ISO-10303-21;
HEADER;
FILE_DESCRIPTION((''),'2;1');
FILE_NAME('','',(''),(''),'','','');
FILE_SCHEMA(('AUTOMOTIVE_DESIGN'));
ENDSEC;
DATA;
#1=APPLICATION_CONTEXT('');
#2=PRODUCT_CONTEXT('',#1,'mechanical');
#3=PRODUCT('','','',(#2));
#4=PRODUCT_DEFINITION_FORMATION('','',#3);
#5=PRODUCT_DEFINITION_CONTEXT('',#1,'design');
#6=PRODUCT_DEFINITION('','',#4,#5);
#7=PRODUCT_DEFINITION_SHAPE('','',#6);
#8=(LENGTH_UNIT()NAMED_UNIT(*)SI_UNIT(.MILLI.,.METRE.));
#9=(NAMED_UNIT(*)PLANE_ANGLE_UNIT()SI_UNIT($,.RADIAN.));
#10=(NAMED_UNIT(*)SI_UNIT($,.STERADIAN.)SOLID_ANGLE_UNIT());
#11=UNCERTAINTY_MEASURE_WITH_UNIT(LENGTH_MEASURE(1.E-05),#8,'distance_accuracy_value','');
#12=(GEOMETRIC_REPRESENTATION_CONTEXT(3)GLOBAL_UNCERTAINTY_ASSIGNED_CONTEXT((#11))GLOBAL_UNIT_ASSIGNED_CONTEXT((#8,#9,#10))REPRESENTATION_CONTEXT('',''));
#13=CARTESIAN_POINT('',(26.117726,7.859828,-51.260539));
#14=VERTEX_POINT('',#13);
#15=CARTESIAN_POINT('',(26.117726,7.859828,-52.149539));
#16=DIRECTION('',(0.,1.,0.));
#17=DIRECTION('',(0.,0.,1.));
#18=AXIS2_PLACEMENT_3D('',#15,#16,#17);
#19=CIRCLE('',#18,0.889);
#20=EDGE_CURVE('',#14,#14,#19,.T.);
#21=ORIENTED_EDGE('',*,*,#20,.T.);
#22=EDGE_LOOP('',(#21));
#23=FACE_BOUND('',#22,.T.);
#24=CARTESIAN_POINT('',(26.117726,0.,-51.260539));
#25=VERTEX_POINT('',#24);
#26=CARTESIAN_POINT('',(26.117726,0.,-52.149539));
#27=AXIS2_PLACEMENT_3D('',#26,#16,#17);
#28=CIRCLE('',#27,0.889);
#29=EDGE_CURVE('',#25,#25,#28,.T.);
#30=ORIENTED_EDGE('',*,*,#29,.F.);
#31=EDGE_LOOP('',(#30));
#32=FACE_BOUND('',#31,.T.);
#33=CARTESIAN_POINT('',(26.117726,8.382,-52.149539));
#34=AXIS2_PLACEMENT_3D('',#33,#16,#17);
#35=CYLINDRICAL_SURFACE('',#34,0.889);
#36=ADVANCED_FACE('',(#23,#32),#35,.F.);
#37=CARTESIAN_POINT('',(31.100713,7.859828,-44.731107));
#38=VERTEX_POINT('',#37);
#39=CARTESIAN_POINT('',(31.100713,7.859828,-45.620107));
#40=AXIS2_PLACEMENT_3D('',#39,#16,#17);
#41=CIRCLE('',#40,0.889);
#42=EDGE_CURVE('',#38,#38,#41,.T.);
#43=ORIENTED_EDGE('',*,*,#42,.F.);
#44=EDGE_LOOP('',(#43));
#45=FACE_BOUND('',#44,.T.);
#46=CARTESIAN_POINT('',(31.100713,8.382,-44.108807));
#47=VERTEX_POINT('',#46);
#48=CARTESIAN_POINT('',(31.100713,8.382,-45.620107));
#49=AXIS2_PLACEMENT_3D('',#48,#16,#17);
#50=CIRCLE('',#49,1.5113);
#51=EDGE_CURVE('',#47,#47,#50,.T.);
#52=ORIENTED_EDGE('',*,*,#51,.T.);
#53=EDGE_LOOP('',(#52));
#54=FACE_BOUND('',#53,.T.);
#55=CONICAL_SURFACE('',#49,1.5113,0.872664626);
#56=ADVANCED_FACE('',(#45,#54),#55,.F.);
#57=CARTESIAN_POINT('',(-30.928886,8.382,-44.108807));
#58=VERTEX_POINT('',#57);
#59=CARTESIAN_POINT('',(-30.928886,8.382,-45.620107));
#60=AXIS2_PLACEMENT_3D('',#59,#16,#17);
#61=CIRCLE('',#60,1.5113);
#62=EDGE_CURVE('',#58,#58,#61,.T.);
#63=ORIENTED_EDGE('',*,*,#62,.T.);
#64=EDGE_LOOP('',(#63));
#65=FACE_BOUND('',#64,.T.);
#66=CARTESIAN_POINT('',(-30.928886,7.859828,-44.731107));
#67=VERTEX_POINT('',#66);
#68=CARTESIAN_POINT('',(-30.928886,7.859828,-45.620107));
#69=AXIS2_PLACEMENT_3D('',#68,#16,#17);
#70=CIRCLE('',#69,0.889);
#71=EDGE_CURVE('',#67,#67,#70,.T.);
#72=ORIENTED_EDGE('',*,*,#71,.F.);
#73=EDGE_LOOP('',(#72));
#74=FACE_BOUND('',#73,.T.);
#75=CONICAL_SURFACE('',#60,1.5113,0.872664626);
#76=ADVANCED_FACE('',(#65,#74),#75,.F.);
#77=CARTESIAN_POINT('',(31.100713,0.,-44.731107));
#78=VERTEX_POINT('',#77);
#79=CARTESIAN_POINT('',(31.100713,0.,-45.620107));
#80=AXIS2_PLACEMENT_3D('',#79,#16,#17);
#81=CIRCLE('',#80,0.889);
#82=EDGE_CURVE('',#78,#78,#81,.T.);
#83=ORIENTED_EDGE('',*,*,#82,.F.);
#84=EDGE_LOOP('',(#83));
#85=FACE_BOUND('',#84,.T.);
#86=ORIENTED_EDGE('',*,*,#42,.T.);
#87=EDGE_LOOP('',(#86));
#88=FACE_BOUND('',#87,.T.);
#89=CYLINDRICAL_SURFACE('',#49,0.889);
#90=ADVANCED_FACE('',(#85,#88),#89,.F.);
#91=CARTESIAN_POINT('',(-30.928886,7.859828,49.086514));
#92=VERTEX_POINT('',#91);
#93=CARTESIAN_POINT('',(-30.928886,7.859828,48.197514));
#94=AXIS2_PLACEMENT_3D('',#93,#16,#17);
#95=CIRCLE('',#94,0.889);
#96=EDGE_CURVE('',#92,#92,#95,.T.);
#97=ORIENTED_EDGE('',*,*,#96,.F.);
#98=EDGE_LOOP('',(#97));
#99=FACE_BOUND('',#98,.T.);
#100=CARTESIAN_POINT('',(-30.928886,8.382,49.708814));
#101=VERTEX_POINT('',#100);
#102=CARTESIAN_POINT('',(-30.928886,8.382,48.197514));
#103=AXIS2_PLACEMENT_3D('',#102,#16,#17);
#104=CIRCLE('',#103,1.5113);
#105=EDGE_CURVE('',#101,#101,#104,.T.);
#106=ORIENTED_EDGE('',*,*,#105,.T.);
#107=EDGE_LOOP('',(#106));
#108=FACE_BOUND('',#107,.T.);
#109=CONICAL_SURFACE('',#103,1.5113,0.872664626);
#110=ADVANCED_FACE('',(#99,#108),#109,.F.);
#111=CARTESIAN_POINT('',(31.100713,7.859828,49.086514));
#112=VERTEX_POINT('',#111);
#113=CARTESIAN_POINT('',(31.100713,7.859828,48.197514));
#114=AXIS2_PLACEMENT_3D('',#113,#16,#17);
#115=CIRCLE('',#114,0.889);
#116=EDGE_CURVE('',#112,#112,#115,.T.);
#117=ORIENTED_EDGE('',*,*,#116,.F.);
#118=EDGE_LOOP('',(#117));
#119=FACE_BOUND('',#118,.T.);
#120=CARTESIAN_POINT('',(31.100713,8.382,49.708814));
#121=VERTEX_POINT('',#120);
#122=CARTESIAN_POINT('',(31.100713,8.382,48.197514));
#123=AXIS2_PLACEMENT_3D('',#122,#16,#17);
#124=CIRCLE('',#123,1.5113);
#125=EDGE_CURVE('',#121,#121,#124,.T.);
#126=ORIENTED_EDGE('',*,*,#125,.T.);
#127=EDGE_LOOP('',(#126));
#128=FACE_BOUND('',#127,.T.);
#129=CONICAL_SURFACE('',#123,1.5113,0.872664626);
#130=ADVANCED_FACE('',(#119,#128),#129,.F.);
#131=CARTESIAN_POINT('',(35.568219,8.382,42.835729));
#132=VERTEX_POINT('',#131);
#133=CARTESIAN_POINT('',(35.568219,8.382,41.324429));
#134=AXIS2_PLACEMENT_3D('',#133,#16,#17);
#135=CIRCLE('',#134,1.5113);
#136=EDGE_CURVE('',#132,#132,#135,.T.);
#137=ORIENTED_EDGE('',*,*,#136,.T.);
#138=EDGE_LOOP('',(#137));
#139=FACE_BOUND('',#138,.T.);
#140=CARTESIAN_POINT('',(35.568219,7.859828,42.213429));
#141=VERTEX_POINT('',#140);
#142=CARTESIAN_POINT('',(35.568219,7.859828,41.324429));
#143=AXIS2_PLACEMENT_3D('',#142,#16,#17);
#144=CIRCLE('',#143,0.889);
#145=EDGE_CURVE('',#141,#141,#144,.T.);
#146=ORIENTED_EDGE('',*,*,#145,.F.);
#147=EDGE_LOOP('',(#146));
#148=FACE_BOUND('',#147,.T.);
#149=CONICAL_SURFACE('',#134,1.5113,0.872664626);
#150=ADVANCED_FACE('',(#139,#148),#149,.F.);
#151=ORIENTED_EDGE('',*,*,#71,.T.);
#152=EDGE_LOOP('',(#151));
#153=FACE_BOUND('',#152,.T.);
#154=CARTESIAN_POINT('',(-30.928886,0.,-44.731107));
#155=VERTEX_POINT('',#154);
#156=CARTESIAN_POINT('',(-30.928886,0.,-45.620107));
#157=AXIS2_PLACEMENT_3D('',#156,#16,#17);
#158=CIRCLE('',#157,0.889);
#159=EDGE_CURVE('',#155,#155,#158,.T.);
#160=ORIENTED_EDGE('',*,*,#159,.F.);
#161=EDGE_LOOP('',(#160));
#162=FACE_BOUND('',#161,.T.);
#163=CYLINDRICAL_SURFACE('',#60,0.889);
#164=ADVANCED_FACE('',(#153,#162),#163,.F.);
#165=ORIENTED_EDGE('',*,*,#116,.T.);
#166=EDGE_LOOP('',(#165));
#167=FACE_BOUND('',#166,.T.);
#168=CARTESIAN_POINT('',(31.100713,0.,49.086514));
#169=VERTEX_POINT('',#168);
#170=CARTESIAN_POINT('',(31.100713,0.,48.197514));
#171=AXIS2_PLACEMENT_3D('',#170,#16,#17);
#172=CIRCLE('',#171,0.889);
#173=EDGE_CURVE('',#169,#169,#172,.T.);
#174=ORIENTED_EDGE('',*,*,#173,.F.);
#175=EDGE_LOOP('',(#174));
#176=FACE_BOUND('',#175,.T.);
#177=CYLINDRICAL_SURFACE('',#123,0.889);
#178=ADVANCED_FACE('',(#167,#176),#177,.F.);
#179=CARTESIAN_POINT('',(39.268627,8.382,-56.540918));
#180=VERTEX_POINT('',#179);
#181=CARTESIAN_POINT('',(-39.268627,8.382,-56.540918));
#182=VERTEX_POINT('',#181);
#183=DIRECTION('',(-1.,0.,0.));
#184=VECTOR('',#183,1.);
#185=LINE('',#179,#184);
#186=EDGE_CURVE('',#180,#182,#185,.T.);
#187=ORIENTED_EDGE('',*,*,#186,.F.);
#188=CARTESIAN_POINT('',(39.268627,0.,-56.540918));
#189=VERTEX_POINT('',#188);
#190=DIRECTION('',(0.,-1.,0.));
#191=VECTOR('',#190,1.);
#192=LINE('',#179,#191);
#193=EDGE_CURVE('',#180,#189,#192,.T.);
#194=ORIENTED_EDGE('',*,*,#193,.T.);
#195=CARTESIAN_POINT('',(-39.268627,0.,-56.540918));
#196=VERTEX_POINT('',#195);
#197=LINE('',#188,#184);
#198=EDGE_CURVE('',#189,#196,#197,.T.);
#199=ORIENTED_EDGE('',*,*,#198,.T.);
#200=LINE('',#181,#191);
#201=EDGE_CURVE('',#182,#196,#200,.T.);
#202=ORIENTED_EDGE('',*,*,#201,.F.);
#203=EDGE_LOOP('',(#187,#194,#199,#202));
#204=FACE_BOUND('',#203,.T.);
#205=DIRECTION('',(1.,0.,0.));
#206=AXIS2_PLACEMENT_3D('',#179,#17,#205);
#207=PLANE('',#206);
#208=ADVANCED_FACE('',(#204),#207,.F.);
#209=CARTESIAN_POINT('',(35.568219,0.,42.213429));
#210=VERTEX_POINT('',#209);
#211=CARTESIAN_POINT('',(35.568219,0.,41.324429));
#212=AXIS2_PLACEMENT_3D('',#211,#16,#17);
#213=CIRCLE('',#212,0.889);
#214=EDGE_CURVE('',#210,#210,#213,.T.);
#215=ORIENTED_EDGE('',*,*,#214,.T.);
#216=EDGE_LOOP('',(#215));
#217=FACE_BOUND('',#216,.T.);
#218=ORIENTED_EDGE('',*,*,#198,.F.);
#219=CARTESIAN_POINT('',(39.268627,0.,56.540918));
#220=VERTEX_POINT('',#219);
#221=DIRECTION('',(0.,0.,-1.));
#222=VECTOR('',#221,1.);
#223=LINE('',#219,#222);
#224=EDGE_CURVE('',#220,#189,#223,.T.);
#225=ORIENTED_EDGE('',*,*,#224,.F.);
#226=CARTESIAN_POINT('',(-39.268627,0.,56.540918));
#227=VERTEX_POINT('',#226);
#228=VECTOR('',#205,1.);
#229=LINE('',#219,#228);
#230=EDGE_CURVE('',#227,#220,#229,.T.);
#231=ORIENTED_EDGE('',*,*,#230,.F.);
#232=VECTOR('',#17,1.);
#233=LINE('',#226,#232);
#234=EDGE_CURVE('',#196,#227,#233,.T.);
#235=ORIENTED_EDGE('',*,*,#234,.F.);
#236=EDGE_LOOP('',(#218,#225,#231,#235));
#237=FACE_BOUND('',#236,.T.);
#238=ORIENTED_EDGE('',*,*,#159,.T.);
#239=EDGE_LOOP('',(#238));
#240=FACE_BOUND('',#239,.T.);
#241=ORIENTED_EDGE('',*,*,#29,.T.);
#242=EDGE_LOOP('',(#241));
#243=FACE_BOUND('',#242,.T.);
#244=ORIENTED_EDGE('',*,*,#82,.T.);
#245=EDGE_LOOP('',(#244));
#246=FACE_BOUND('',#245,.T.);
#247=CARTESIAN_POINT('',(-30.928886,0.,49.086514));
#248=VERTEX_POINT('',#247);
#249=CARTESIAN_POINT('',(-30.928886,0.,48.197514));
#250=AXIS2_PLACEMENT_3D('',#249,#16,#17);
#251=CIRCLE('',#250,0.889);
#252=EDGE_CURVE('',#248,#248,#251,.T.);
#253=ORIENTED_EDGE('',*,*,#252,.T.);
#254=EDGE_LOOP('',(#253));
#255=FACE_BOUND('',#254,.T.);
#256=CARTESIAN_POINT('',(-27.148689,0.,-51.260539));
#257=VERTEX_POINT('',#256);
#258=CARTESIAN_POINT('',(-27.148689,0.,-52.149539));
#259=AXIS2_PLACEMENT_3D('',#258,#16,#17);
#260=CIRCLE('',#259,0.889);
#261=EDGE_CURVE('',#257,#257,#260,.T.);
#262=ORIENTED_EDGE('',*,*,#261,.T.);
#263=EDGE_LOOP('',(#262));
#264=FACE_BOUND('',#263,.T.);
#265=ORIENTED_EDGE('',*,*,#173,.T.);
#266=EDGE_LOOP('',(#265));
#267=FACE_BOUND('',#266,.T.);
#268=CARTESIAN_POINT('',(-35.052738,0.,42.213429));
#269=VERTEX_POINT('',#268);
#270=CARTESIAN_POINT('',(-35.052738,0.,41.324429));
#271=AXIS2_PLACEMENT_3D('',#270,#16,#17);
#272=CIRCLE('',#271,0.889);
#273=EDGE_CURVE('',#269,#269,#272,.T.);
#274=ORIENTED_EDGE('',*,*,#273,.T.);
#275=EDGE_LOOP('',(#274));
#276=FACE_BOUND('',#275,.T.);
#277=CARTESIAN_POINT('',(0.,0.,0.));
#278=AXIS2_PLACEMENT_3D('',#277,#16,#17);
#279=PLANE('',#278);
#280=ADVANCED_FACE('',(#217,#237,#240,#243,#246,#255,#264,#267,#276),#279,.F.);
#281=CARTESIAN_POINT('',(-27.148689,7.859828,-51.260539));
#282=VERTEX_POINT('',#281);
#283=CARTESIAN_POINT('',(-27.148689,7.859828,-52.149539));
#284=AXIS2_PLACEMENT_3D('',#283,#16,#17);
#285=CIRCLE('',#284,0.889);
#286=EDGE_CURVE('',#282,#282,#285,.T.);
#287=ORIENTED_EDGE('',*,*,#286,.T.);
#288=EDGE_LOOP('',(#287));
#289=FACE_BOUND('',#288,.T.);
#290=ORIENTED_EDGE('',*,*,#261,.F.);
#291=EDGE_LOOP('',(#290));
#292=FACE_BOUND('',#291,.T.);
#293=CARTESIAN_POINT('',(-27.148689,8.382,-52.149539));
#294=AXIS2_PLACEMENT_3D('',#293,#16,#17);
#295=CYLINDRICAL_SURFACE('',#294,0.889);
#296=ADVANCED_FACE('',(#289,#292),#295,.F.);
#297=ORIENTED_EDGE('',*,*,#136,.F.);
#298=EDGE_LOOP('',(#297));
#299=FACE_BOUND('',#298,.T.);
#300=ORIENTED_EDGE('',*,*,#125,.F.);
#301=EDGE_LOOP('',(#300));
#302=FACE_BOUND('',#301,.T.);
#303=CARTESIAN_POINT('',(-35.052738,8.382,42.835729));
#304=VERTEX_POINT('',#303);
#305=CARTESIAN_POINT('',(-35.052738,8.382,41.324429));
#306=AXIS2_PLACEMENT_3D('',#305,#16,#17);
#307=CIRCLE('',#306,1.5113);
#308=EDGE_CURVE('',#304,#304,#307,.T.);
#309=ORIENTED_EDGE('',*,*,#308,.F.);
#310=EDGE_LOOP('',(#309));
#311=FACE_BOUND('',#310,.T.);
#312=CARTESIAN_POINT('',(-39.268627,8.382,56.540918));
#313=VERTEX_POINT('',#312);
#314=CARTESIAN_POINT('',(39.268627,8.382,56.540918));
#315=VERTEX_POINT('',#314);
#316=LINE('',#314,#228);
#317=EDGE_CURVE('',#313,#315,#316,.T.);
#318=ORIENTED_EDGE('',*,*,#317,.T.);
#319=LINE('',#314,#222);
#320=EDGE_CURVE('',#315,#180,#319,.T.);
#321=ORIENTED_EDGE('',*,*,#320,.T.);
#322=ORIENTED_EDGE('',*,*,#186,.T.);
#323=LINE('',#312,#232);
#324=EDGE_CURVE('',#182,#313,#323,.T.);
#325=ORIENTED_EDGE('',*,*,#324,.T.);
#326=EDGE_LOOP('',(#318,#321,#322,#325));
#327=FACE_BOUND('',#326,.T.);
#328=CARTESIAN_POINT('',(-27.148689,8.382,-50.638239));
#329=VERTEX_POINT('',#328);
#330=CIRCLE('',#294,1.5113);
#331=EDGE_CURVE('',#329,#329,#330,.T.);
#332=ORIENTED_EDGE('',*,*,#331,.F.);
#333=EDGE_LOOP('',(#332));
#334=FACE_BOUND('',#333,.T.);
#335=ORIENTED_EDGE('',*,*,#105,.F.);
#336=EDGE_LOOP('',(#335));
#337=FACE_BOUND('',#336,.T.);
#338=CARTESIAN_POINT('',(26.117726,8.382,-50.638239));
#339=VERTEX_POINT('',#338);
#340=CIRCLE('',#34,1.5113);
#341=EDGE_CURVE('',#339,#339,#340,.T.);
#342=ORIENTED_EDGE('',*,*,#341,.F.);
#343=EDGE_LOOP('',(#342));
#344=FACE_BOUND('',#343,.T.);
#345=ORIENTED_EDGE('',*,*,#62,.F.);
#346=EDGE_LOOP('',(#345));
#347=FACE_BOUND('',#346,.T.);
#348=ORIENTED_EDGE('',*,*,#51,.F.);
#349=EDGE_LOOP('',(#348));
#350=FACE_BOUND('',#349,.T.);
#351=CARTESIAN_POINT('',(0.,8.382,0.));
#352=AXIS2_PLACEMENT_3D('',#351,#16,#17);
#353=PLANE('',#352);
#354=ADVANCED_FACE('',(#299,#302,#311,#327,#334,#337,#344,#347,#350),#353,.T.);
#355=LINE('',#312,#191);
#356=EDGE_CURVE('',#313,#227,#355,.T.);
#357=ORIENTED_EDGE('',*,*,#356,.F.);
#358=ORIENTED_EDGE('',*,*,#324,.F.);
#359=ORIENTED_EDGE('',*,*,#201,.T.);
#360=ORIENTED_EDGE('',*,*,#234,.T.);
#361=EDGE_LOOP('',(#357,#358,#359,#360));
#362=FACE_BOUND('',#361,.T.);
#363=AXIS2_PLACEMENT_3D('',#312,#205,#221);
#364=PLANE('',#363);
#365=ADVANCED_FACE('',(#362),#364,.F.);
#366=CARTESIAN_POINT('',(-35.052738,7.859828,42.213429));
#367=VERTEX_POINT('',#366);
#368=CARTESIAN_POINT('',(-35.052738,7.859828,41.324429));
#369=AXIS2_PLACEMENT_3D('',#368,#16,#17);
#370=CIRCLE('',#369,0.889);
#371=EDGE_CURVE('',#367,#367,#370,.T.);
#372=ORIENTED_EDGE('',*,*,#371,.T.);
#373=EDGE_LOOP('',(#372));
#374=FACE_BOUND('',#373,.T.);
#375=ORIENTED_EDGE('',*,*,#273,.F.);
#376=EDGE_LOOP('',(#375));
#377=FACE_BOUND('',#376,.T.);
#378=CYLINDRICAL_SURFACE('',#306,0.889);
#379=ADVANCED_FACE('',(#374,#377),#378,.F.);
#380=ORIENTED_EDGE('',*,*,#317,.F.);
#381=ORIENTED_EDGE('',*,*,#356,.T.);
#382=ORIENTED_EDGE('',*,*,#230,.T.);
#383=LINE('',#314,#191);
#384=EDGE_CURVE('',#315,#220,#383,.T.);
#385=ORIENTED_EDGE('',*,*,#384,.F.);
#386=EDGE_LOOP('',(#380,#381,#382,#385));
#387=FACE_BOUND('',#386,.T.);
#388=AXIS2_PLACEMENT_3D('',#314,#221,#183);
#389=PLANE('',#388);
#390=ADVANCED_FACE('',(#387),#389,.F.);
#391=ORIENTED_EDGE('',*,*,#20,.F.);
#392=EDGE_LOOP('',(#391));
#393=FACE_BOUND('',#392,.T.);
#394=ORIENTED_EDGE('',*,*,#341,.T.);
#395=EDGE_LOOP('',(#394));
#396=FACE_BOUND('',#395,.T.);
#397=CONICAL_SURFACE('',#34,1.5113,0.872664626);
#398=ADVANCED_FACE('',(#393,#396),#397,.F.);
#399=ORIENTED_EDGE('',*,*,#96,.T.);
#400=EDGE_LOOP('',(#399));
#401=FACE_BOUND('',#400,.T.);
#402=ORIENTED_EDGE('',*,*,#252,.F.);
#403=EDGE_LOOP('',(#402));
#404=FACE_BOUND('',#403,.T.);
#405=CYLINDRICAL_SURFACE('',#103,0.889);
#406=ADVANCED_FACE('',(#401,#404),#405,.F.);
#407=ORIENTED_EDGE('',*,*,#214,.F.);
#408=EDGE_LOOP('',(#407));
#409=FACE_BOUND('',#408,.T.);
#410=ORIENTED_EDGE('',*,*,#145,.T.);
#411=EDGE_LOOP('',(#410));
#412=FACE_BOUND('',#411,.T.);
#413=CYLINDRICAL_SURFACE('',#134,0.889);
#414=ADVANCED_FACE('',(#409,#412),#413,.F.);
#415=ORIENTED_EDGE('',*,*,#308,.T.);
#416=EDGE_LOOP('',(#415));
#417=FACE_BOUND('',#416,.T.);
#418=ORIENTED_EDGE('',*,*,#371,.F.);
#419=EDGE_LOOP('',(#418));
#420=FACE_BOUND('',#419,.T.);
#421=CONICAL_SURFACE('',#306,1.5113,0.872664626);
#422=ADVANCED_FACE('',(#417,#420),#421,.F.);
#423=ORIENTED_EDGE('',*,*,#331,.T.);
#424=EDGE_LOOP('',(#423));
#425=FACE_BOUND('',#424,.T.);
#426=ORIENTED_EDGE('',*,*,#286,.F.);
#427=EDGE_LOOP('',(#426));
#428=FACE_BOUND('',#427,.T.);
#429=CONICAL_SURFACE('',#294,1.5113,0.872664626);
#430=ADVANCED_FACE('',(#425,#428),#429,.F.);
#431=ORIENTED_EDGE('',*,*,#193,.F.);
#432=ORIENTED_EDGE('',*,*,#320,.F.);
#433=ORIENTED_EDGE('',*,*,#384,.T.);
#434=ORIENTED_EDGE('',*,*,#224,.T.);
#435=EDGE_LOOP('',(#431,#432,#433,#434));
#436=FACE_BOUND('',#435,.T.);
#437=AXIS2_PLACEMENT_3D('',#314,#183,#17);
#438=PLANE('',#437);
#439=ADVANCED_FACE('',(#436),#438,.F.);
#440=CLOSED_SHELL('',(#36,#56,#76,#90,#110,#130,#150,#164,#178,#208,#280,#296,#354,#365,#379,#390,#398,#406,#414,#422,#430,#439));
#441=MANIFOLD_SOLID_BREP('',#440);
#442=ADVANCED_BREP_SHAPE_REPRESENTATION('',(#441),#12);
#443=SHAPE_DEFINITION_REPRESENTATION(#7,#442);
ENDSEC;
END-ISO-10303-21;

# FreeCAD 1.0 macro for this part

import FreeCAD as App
import Part
import Sketcher

V = App.Vector
Q = App.Units.Quantity


def add_polygon(sketch, points):
    """Adds a closed chain of lines whose ends are joined by coincident constraints."""
    first, n = sketch.GeometryCount, len(points)
    for a, b in zip(points, points[1:] + points[:1]):
        sketch.addGeometry(Part.LineSegment(App.Vector(*a, 0), App.Vector(*b, 0)), False)
    for i in range(n):
        sketch.addConstraint(Sketcher.Constraint("Coincident", first + i, 2, first + (i + 1) % n, 1))

doc = App.newDocument("Part")
body = doc.addObject("PartDesign::Body", "Body")

# Sketch on XZ plane
sketch1 = doc.addObject("Sketcher::SketchObject", "Sketch")
body.addObject(sketch1)
sketch1.AttachmentSupport = (doc.XZ_Plane, [""])
sketch1.MapMode = "FlatFace"
add_polygon(sketch1, [(-39, -57), (-39, 57), (39, 57), (39, -57)])  # lines 0-3
sketch1.addConstraint([
    Sketcher.Constraint("Vertical", 0),
    Sketcher.Constraint("Horizontal", 1),
    Sketcher.Constraint("Vertical", 2),
    Sketcher.Constraint("Horizontal", 3),
    Sketcher.Constraint("Symmetric", 0, 2, 2, 2, -1, 1),
    Sketcher.Constraint("DistanceX", 1, 1, 1, 2, 78.537254),
    Sketcher.Constraint("DistanceY", 0, 1, 0, 2, 113.081836),
])
pad1 = doc.addObject("PartDesign::Pad", "Pad")
body.addObject(pad1)
pad1.Profile = sketch1
pad1.Length = Q("0.33 in")
pad1.Reversed = True

# Sketch on XZ plane
sketch2 = doc.addObject("Sketcher::SketchObject", "Sketch001")
body.addObject(sketch2)
sketch2.AttachmentSupport = (doc.XZ_Plane, [""])
sketch2.MapMode = "FlatFace"
sketch2.AttachmentOffset = App.Placement(V(0, 0, -0.33 * 25.4), App.Rotation())
sketch2.addGeometry([
    Part.Circle(V(-30.9, -45.6, 0), V(0, 0, 1), 0.9),  # 0
    Part.Circle(V(31.1, -45.6, 0), V(0, 0, 1), 0.9),  # 1
    Part.Circle(V(31.1, 48.2, 0), V(0, 0, 1), 0.9),  # 2
    Part.Circle(V(-30.9, 48.2, 0), V(0, 0, 1), 0.9),  # 3
    Part.Circle(V(-35.1, 41.3, 0), V(0, 0, 1), 0.9),  # 4
    Part.Circle(V(35.6, 41.3, 0), V(0, 0, 1), 0.9),  # 5
    Part.Circle(V(26.1, -52.1, 0), V(0, 0, 1), 0.9),  # 6
    Part.Circle(V(-27.1, -52.1, 0), V(0, 0, 1), 0.9),  # 7
], False)
sketch2.addConstraint([
    Sketcher.Constraint("Equal", 0, 1),
    Sketcher.Constraint("Equal", 1, 2),
    Sketcher.Constraint("Equal", 2, 3),
    Sketcher.Constraint("Equal", 3, 4),
    Sketcher.Constraint("Equal", 4, 5),
    Sketcher.Constraint("Equal", 5, 6),
    Sketcher.Constraint("Equal", 6, 7),
    Sketcher.Constraint("Horizontal", 0, 3, 1, 3),
    Sketcher.Constraint("Horizontal", 2, 3, 3, 3),
    Sketcher.Constraint("Horizontal", 4, 3, 5, 3),
    Sketcher.Constraint("Horizontal", 6, 3, 7, 3),
    Sketcher.Constraint("Vertical", 1, 3, 2, 3),
    Sketcher.Constraint("Vertical", 0, 3, 3, 3),
    Sketcher.Constraint("Diameter", 0, Q("0.07 in")),
    Sketcher.Constraint("DistanceX", 0, 3, 1, 3, 62.0296),
    Sketcher.Constraint("DistanceY", -1, 1, 4, 3, 41.324429),
    Sketcher.Constraint("DistanceX", -1, 1, 5, 3, 35.568219),
    Sketcher.Constraint("DistanceY", 6, 3, -1, 1, 52.149539),
    Sketcher.Constraint("DistanceX", 7, 3, -1, 1, 27.148689),
    Sketcher.Constraint("DistanceY", 1, 3, 2, 3, 93.817622),
    Sketcher.Constraint("DistanceX", 4, 3, 3, 3, 4.123852),
    Sketcher.Constraint("DistanceY", 6, 3, 1, 3, 6.529432),
    Sketcher.Constraint("DistanceX", 4, 3, 7, 3, 7.904049),
    Sketcher.Constraint("DistanceX", -1, 1, 6, 3, 26.117726),
])
doc.recompute()
hole = doc.addObject("PartDesign::Hole", "Hole")
body.addObject(hole)
hole.Profile = sketch2
hole.ThreadType = "None"
hole.Diameter = Q("0.07 in")
hole.DepthType = "ThroughAll"
hole.HoleCutType = "Countersink"
hole.HoleCutDiameter = Q("0.119 in")
hole.HoleCutCountersinkAngle = 100
hole.Reversed = True

doc.recompute()
